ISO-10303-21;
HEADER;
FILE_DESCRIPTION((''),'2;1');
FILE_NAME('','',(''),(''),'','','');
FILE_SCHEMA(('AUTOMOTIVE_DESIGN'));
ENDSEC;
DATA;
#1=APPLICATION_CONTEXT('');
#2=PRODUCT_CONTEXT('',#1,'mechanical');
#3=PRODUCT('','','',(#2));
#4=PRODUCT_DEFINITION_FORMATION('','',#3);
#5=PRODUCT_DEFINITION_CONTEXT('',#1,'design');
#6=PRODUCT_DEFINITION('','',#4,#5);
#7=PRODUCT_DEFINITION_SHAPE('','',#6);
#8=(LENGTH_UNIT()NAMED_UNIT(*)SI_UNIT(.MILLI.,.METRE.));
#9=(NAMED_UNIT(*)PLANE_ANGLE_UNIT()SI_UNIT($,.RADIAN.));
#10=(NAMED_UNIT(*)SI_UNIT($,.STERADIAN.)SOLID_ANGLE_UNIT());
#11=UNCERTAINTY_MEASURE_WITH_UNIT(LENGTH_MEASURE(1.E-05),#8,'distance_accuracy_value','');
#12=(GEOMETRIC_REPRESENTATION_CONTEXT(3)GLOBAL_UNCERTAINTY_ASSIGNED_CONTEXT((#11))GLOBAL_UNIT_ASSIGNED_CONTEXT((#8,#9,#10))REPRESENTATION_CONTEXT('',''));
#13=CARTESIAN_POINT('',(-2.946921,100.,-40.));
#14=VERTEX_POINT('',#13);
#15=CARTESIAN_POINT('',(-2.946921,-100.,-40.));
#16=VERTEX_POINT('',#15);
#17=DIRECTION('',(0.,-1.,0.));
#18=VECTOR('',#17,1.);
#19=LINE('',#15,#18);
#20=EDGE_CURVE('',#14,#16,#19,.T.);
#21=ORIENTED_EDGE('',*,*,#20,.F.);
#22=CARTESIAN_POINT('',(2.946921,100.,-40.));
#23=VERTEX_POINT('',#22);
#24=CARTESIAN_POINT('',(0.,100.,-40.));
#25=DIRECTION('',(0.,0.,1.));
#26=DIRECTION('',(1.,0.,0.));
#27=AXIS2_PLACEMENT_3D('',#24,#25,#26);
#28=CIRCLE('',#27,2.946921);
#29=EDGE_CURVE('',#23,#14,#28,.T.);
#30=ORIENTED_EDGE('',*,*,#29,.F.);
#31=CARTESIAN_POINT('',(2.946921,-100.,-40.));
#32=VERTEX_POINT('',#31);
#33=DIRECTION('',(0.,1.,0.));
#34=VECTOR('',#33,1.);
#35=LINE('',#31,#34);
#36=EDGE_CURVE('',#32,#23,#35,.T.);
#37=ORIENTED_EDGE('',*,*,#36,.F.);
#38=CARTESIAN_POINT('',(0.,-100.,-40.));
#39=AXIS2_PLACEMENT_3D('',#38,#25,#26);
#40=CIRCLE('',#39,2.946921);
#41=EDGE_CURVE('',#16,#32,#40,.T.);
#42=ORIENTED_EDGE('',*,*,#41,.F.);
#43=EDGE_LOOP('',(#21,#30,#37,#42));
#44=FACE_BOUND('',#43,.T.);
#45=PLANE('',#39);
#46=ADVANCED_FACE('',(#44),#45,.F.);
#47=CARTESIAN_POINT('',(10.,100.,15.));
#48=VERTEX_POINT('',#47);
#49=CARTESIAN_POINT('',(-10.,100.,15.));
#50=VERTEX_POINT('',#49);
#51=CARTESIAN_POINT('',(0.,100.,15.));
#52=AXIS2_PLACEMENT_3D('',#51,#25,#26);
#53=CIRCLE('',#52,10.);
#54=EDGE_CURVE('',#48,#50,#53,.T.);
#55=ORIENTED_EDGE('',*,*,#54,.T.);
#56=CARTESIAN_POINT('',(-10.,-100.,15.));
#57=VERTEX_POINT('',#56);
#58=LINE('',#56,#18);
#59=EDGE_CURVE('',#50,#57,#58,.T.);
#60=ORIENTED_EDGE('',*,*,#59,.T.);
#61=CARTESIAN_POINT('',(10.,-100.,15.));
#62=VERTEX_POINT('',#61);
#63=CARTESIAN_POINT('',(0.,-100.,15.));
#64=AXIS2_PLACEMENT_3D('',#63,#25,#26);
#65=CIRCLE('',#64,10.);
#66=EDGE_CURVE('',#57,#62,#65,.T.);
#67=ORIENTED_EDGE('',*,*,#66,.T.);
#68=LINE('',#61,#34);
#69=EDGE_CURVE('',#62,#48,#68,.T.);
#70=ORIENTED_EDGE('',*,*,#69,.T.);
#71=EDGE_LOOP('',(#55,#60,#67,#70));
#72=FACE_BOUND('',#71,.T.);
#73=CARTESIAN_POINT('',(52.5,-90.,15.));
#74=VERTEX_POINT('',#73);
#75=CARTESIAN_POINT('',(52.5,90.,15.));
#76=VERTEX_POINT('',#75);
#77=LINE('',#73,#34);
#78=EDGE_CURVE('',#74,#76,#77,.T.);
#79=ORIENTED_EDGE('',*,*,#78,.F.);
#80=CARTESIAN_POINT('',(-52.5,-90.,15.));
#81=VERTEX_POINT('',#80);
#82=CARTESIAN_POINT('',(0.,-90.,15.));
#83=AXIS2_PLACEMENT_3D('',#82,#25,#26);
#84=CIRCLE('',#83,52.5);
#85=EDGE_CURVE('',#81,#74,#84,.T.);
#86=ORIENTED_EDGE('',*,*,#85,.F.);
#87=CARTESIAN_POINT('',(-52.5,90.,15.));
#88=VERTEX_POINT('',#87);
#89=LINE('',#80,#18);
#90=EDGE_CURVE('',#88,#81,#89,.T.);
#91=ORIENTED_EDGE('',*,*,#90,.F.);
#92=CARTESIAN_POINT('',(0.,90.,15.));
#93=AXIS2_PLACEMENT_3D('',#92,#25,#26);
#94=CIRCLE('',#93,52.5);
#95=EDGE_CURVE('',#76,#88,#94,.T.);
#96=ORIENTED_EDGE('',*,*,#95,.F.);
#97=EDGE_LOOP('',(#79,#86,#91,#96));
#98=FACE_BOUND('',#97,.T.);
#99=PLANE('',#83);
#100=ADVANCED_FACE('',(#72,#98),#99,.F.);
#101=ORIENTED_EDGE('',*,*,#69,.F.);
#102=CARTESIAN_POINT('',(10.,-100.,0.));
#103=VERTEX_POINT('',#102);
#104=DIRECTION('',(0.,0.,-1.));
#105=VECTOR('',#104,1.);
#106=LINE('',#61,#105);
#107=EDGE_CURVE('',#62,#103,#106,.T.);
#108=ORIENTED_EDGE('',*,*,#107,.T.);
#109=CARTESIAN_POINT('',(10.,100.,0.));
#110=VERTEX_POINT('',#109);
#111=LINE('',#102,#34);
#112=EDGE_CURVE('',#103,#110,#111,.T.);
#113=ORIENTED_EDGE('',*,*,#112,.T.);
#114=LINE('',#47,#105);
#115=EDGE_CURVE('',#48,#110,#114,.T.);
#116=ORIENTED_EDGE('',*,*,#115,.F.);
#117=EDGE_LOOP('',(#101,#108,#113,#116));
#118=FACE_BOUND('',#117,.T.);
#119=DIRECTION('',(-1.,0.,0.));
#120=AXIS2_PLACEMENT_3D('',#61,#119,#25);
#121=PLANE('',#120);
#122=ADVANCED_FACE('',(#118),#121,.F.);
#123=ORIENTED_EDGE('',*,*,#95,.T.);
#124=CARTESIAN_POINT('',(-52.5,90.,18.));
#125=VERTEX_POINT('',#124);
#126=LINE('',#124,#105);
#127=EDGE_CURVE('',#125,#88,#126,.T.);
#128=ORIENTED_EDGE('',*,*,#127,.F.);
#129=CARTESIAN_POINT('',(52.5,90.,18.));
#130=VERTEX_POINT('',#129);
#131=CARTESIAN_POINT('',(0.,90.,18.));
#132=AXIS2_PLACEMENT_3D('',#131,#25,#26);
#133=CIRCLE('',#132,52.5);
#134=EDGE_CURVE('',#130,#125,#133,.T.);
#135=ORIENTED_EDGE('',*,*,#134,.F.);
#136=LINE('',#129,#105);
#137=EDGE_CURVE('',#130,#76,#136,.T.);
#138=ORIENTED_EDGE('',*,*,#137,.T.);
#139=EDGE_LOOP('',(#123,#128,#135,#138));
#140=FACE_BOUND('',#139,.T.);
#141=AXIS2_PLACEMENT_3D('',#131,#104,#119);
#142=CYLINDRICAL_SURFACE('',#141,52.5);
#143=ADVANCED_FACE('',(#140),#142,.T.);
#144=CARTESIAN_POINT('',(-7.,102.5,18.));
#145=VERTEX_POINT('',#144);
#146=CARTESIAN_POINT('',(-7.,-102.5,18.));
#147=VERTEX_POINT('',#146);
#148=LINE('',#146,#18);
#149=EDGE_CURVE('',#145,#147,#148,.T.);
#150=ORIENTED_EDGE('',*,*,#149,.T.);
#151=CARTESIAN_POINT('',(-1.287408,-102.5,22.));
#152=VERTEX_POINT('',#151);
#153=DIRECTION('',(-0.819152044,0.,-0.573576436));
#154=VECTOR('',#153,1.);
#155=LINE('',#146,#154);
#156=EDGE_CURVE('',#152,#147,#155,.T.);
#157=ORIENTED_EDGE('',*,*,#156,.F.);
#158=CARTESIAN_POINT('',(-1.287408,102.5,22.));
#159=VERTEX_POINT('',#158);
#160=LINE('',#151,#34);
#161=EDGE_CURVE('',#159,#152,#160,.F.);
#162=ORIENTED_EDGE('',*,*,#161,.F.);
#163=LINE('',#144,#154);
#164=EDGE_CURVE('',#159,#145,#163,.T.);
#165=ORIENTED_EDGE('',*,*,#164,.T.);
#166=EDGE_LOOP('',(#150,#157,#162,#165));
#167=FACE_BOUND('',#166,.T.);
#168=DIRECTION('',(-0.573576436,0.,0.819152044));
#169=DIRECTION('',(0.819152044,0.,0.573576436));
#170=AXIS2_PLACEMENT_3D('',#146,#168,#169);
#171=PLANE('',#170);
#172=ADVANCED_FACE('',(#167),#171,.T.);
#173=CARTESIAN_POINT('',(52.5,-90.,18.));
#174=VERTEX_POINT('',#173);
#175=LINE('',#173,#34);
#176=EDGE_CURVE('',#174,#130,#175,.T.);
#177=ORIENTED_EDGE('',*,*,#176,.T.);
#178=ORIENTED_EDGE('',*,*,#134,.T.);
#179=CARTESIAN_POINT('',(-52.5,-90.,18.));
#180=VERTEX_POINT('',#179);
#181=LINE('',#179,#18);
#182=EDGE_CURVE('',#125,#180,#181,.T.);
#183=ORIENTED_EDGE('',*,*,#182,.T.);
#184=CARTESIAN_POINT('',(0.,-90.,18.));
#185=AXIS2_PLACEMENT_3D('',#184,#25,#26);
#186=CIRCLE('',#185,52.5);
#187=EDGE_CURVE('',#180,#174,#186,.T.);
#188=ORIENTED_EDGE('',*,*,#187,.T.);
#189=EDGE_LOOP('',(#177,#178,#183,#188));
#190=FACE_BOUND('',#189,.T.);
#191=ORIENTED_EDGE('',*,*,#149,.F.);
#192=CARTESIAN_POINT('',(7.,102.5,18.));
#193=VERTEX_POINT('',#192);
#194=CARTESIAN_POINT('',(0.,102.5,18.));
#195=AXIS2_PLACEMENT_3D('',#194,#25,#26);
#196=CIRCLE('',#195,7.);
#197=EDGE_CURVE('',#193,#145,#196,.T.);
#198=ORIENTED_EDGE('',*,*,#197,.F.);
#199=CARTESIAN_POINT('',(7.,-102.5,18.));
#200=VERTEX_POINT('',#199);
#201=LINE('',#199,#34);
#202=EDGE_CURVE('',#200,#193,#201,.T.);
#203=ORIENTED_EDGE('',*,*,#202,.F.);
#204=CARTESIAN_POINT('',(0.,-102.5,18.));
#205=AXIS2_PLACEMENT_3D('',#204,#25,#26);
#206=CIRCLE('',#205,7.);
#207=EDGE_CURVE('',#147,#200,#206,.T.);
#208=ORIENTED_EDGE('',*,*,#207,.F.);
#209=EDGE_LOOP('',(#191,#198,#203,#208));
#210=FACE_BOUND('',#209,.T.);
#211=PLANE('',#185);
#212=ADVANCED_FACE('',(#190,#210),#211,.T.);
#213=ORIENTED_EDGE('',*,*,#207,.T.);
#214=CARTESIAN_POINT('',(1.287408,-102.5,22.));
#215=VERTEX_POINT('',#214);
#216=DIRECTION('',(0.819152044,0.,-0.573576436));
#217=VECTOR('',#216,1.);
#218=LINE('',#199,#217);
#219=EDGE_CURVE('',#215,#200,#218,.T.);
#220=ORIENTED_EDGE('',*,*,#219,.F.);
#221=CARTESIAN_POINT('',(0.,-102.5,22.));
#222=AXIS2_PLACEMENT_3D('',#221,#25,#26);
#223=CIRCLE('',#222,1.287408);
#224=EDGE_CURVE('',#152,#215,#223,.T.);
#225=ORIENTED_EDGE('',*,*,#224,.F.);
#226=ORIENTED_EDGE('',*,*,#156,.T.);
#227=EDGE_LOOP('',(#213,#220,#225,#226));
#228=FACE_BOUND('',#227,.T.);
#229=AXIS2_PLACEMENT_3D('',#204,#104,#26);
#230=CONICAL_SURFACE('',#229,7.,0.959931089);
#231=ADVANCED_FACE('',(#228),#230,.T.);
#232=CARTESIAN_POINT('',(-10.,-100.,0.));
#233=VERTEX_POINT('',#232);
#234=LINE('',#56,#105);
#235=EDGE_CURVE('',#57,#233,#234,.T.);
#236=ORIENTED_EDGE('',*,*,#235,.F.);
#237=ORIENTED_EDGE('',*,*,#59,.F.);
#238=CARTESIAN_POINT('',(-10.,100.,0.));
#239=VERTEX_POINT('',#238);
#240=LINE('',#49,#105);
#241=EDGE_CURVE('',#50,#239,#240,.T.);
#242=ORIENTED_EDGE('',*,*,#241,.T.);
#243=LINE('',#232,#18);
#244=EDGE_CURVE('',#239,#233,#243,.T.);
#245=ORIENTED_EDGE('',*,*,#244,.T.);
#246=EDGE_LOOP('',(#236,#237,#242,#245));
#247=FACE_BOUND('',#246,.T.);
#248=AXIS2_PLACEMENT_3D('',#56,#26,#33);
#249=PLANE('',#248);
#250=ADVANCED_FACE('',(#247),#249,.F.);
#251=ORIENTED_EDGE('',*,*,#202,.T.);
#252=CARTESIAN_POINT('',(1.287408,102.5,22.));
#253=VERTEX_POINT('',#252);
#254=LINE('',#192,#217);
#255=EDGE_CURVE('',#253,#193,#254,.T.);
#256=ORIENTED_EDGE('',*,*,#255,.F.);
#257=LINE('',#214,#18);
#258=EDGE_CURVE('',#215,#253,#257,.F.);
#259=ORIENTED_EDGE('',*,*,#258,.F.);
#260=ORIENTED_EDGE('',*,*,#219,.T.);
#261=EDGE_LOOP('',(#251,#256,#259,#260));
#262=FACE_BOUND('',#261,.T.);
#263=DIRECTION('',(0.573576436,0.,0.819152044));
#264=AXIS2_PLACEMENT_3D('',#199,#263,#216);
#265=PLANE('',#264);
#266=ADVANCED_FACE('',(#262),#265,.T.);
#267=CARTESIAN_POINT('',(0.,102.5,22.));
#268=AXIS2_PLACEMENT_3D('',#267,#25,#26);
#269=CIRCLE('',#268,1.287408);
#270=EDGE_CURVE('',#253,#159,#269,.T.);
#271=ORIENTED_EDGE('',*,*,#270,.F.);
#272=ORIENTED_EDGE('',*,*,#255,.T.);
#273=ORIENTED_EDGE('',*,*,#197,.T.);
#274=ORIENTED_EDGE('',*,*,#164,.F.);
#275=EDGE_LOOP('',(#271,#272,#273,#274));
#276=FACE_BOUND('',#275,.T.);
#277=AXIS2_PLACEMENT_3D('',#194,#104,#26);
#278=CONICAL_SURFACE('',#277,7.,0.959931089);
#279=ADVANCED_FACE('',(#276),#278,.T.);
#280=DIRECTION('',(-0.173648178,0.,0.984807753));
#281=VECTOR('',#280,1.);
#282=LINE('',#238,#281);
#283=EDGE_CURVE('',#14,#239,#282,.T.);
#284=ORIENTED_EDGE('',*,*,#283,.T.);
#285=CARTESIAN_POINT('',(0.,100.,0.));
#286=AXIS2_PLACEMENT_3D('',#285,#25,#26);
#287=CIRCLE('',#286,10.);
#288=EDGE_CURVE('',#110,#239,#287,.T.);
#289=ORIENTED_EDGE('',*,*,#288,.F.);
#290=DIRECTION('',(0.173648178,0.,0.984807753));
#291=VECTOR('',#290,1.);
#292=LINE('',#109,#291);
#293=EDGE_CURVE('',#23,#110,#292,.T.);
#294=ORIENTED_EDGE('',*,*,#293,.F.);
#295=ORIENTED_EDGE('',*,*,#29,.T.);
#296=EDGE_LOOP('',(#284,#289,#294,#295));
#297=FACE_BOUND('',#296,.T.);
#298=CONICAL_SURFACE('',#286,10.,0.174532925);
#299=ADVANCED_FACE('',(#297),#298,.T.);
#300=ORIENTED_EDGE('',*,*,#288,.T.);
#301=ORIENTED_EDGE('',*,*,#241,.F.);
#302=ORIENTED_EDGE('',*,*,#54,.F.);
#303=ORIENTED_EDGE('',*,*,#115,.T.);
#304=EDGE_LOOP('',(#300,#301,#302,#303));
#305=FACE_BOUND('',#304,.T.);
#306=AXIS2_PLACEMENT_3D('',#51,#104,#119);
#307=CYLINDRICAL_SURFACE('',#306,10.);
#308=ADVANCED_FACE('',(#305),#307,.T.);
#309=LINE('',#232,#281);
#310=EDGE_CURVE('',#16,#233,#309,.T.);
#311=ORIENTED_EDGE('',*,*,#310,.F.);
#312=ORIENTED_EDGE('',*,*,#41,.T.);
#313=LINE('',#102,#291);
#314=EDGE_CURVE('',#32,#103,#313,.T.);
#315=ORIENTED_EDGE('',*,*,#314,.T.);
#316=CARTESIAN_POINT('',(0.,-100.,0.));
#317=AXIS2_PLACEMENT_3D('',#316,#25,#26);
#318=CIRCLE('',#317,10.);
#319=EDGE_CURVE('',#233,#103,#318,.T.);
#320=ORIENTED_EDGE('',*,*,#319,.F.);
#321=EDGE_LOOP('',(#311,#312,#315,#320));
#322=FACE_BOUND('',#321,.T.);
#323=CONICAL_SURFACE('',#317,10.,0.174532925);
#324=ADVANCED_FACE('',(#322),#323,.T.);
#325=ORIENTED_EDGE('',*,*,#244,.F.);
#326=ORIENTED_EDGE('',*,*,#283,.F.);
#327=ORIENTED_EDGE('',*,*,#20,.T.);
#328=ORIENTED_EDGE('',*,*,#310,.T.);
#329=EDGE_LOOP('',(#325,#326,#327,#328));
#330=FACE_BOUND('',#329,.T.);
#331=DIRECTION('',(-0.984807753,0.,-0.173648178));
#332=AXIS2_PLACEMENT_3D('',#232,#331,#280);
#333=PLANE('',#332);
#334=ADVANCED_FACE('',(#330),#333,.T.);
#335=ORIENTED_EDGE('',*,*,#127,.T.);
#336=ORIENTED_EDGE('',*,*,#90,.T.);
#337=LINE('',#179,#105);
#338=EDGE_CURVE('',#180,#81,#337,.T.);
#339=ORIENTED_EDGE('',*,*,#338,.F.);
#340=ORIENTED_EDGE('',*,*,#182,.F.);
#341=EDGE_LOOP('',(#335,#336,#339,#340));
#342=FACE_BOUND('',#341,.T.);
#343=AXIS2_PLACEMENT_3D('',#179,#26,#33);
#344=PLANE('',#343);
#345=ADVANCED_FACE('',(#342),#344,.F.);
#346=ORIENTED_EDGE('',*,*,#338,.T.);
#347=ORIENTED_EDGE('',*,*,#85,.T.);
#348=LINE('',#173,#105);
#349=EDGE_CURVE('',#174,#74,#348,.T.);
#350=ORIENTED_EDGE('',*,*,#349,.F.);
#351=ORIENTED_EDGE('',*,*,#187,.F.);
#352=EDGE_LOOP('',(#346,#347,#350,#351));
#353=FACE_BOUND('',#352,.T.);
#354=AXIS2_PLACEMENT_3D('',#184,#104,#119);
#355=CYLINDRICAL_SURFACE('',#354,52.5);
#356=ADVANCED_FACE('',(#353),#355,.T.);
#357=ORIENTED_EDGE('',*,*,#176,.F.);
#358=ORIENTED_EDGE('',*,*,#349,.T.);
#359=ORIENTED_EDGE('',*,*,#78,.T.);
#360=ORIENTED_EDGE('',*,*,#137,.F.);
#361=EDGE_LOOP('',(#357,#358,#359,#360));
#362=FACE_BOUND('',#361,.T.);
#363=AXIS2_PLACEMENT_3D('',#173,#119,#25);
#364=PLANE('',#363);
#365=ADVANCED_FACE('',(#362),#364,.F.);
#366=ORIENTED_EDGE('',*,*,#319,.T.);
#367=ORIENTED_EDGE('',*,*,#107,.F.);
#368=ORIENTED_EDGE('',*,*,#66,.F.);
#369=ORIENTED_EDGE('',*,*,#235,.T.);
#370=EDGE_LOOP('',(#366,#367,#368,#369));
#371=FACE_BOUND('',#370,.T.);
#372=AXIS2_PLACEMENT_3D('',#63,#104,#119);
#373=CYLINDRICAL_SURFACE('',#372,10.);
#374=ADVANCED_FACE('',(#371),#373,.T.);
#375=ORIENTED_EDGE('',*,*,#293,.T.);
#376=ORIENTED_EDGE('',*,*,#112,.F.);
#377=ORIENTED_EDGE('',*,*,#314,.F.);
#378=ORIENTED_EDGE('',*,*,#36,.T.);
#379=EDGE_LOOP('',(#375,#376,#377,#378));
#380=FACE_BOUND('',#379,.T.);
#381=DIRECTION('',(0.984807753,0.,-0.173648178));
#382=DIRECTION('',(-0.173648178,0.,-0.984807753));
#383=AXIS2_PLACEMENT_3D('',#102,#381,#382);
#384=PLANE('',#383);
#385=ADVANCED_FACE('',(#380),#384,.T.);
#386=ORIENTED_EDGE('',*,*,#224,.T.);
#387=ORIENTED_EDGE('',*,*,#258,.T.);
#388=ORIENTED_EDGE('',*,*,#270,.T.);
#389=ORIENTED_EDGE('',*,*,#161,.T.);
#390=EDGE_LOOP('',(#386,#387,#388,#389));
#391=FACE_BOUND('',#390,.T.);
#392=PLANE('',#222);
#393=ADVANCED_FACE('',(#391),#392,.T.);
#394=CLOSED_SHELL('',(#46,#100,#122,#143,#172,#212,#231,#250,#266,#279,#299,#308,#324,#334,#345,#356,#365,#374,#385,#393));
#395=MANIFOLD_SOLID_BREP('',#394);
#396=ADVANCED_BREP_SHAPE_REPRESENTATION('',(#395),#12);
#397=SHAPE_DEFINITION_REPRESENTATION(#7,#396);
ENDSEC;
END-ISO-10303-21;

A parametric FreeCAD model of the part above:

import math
import FreeCAD as App
import Part
import Sketcher
Q = App.Units.Quantity

doc = App.newDocument("Part")
body = doc.addObject("PartDesign::Body", "Body")

# Sketch on XY plane
sketch1 = doc.addObject("Sketcher::SketchObject", "Sketch")
body.addObject(sketch1)
sketch1.AttachmentSupport = (doc.XY_Plane, [""])
sketch1.MapMode = "FlatFace"
sketch1.addGeometry([
    Part.ArcOfCircle(Part.Circle(App.Vector(0, -100, 0), App.Vector(0, 0, 1), 10), math.radians(180), math.radians(360)),
    Part.LineSegment(App.Vector(10, -100, 0), App.Vector(10, 100, 0)),
    Part.ArcOfCircle(Part.Circle(App.Vector(0, 100, 0), App.Vector(0, 0, 1), 10), math.radians(0), math.radians(180)),
    Part.LineSegment(App.Vector(-10, 100, 0), App.Vector(-10, -100, 0)),
], False)
sketch1.addConstraint([
    Sketcher.Constraint("Tangent", 0, 2, 1, 1),
    Sketcher.Constraint("Tangent", 1, 2, 2, 1),
    Sketcher.Constraint("Tangent", 2, 2, 3, 1),
    Sketcher.Constraint("Tangent", 3, 2, 0, 1),
    Sketcher.Constraint("Vertical", 1),
    Sketcher.Constraint("Vertical", 3),
    Sketcher.Constraint("Symmetric", 0, 3, 2, 3, -1, 1),
    Sketcher.Constraint("Radius", 0, Q("10 mm")),
    Sketcher.Constraint("DistanceY", 1, 1, 1, 2, Q("200 mm")),
])
pad1 = doc.addObject("PartDesign::Pad", "Pad")
body.addObject(pad1)
pad1.Profile = sketch1
pad1.Length = 15

# Sketch on XY plane
sketch2 = doc.addObject("Sketcher::SketchObject", "Sketch001")
body.addObject(sketch2)
sketch2.AttachmentSupport = (doc.XY_Plane, [""])
sketch2.MapMode = "FlatFace"
sketch2.addGeometry([
    Part.ArcOfCircle(Part.Circle(App.Vector(0, -100, 0), App.Vector(0, 0, 1), 10), math.radians(180), math.radians(360)),
    Part.LineSegment(App.Vector(10, -100, 0), App.Vector(10, 100, 0)),
    Part.ArcOfCircle(Part.Circle(App.Vector(0, 100, 0), App.Vector(0, 0, 1), 10), math.radians(0), math.radians(180)),
    Part.LineSegment(App.Vector(-10, 100, 0), App.Vector(-10, -100, 0)),
], False)
sketch2.addConstraint([
    Sketcher.Constraint("Tangent", 0, 2, 1, 1),
    Sketcher.Constraint("Tangent", 1, 2, 2, 1),
    Sketcher.Constraint("Tangent", 2, 2, 3, 1),
    Sketcher.Constraint("Tangent", 3, 2, 0, 1),
    Sketcher.Constraint("Vertical", 1),
    Sketcher.Constraint("Vertical", 3),
    Sketcher.Constraint("Symmetric", 0, 3, 2, 3, -1, 1),
    Sketcher.Constraint("Radius", 0, Q("10 mm")),
    Sketcher.Constraint("DistanceY", 1, 1, 1, 2, Q("200 mm")),
])
pad2 = doc.addObject("PartDesign::Pad", "Pad001")
body.addObject(pad2)
pad2.Profile = sketch2
pad2.Length = 40
pad2.Reversed = True
pad2.TaperAngle = -10

# Sketch on XY plane
sketch3 = doc.addObject("Sketcher::SketchObject", "Sketch002")
body.addObject(sketch3)
sketch3.AttachmentSupport = (doc.XY_Plane, [""])
sketch3.MapMode = "FlatFace"
sketch3.AttachmentOffset = App.Placement(App.Vector(0, 0, 15), App.Rotation())
sketch3.addGeometry([
    Part.LineSegment(App.Vector(-52, 90, 0), App.Vector(-52, -90, 0)),
    Part.ArcOfCircle(Part.Circle(App.Vector(0, -90, 0), App.Vector(0, 0, 1), 52), math.radians(180), math.radians(360)),
    Part.LineSegment(App.Vector(52, -90, 0), App.Vector(52, 90, 0)),
    Part.ArcOfCircle(Part.Circle(App.Vector(0, 90, 0), App.Vector(0, 0, 1), 52), math.radians(0), math.radians(180)),
], False)
sketch3.addConstraint([
    Sketcher.Constraint("Tangent", 0, 2, 1, 1),
    Sketcher.Constraint("Tangent", 1, 2, 2, 1),
    Sketcher.Constraint("Tangent", 2, 2, 3, 1),
    Sketcher.Constraint("Tangent", 3, 2, 0, 1),
    Sketcher.Constraint("Vertical", 0),
    Sketcher.Constraint("Vertical", 2),
    Sketcher.Constraint("Symmetric", 1, 3, 3, 3, -1, 1),
    Sketcher.Constraint("Radius", 1, Q("52.5 mm")),
    Sketcher.Constraint("DistanceY", 0, 2, 0, 1, Q("180 mm")),
])
pad3 = doc.addObject("PartDesign::Pad", "Pad002")
body.addObject(pad3)
pad3.Profile = sketch3
pad3.Length = 3

# Sketch on XY plane
sketch4 = doc.addObject("Sketcher::SketchObject", "Sketch003")
body.addObject(sketch4)
sketch4.AttachmentSupport = (doc.XY_Plane, [""])
sketch4.MapMode = "FlatFace"
sketch4.AttachmentOffset = App.Placement(App.Vector(0, 0, 18), App.Rotation())
sketch4.addGeometry([
    Part.ArcOfCircle(Part.Circle(App.Vector(0, -102, 0), App.Vector(0, 0, 1), 7), math.radians(180), math.radians(360)),
    Part.LineSegment(App.Vector(7, -102, 0), App.Vector(7, 102, 0)),
    Part.ArcOfCircle(Part.Circle(App.Vector(0, 102, 0), App.Vector(0, 0, 1), 7), math.radians(0), math.radians(180)),
    Part.LineSegment(App.Vector(-7, 102, 0), App.Vector(-7, -102, 0)),
], False)
sketch4.addConstraint([
    Sketcher.Constraint("Tangent", 0, 2, 1, 1),
    Sketcher.Constraint("Tangent", 1, 2, 2, 1),
    Sketcher.Constraint("Tangent", 2, 2, 3, 1),
    Sketcher.Constraint("Tangent", 3, 2, 0, 1),
    Sketcher.Constraint("Vertical", 1),
    Sketcher.Constraint("Vertical", 3),
    Sketcher.Constraint("Symmetric", 0, 3, 2, 3, -1, 1),
    Sketcher.Constraint("Radius", 0, Q("7 mm")),
    Sketcher.Constraint("DistanceY", 1, 1, 1, 2, Q("205 mm")),
])
pad4 = doc.addObject("PartDesign::Pad", "Pad003")
body.addObject(pad4)
pad4.Profile = sketch4
pad4.Length = 4
pad4.TaperAngle = -55

doc.recompute()
